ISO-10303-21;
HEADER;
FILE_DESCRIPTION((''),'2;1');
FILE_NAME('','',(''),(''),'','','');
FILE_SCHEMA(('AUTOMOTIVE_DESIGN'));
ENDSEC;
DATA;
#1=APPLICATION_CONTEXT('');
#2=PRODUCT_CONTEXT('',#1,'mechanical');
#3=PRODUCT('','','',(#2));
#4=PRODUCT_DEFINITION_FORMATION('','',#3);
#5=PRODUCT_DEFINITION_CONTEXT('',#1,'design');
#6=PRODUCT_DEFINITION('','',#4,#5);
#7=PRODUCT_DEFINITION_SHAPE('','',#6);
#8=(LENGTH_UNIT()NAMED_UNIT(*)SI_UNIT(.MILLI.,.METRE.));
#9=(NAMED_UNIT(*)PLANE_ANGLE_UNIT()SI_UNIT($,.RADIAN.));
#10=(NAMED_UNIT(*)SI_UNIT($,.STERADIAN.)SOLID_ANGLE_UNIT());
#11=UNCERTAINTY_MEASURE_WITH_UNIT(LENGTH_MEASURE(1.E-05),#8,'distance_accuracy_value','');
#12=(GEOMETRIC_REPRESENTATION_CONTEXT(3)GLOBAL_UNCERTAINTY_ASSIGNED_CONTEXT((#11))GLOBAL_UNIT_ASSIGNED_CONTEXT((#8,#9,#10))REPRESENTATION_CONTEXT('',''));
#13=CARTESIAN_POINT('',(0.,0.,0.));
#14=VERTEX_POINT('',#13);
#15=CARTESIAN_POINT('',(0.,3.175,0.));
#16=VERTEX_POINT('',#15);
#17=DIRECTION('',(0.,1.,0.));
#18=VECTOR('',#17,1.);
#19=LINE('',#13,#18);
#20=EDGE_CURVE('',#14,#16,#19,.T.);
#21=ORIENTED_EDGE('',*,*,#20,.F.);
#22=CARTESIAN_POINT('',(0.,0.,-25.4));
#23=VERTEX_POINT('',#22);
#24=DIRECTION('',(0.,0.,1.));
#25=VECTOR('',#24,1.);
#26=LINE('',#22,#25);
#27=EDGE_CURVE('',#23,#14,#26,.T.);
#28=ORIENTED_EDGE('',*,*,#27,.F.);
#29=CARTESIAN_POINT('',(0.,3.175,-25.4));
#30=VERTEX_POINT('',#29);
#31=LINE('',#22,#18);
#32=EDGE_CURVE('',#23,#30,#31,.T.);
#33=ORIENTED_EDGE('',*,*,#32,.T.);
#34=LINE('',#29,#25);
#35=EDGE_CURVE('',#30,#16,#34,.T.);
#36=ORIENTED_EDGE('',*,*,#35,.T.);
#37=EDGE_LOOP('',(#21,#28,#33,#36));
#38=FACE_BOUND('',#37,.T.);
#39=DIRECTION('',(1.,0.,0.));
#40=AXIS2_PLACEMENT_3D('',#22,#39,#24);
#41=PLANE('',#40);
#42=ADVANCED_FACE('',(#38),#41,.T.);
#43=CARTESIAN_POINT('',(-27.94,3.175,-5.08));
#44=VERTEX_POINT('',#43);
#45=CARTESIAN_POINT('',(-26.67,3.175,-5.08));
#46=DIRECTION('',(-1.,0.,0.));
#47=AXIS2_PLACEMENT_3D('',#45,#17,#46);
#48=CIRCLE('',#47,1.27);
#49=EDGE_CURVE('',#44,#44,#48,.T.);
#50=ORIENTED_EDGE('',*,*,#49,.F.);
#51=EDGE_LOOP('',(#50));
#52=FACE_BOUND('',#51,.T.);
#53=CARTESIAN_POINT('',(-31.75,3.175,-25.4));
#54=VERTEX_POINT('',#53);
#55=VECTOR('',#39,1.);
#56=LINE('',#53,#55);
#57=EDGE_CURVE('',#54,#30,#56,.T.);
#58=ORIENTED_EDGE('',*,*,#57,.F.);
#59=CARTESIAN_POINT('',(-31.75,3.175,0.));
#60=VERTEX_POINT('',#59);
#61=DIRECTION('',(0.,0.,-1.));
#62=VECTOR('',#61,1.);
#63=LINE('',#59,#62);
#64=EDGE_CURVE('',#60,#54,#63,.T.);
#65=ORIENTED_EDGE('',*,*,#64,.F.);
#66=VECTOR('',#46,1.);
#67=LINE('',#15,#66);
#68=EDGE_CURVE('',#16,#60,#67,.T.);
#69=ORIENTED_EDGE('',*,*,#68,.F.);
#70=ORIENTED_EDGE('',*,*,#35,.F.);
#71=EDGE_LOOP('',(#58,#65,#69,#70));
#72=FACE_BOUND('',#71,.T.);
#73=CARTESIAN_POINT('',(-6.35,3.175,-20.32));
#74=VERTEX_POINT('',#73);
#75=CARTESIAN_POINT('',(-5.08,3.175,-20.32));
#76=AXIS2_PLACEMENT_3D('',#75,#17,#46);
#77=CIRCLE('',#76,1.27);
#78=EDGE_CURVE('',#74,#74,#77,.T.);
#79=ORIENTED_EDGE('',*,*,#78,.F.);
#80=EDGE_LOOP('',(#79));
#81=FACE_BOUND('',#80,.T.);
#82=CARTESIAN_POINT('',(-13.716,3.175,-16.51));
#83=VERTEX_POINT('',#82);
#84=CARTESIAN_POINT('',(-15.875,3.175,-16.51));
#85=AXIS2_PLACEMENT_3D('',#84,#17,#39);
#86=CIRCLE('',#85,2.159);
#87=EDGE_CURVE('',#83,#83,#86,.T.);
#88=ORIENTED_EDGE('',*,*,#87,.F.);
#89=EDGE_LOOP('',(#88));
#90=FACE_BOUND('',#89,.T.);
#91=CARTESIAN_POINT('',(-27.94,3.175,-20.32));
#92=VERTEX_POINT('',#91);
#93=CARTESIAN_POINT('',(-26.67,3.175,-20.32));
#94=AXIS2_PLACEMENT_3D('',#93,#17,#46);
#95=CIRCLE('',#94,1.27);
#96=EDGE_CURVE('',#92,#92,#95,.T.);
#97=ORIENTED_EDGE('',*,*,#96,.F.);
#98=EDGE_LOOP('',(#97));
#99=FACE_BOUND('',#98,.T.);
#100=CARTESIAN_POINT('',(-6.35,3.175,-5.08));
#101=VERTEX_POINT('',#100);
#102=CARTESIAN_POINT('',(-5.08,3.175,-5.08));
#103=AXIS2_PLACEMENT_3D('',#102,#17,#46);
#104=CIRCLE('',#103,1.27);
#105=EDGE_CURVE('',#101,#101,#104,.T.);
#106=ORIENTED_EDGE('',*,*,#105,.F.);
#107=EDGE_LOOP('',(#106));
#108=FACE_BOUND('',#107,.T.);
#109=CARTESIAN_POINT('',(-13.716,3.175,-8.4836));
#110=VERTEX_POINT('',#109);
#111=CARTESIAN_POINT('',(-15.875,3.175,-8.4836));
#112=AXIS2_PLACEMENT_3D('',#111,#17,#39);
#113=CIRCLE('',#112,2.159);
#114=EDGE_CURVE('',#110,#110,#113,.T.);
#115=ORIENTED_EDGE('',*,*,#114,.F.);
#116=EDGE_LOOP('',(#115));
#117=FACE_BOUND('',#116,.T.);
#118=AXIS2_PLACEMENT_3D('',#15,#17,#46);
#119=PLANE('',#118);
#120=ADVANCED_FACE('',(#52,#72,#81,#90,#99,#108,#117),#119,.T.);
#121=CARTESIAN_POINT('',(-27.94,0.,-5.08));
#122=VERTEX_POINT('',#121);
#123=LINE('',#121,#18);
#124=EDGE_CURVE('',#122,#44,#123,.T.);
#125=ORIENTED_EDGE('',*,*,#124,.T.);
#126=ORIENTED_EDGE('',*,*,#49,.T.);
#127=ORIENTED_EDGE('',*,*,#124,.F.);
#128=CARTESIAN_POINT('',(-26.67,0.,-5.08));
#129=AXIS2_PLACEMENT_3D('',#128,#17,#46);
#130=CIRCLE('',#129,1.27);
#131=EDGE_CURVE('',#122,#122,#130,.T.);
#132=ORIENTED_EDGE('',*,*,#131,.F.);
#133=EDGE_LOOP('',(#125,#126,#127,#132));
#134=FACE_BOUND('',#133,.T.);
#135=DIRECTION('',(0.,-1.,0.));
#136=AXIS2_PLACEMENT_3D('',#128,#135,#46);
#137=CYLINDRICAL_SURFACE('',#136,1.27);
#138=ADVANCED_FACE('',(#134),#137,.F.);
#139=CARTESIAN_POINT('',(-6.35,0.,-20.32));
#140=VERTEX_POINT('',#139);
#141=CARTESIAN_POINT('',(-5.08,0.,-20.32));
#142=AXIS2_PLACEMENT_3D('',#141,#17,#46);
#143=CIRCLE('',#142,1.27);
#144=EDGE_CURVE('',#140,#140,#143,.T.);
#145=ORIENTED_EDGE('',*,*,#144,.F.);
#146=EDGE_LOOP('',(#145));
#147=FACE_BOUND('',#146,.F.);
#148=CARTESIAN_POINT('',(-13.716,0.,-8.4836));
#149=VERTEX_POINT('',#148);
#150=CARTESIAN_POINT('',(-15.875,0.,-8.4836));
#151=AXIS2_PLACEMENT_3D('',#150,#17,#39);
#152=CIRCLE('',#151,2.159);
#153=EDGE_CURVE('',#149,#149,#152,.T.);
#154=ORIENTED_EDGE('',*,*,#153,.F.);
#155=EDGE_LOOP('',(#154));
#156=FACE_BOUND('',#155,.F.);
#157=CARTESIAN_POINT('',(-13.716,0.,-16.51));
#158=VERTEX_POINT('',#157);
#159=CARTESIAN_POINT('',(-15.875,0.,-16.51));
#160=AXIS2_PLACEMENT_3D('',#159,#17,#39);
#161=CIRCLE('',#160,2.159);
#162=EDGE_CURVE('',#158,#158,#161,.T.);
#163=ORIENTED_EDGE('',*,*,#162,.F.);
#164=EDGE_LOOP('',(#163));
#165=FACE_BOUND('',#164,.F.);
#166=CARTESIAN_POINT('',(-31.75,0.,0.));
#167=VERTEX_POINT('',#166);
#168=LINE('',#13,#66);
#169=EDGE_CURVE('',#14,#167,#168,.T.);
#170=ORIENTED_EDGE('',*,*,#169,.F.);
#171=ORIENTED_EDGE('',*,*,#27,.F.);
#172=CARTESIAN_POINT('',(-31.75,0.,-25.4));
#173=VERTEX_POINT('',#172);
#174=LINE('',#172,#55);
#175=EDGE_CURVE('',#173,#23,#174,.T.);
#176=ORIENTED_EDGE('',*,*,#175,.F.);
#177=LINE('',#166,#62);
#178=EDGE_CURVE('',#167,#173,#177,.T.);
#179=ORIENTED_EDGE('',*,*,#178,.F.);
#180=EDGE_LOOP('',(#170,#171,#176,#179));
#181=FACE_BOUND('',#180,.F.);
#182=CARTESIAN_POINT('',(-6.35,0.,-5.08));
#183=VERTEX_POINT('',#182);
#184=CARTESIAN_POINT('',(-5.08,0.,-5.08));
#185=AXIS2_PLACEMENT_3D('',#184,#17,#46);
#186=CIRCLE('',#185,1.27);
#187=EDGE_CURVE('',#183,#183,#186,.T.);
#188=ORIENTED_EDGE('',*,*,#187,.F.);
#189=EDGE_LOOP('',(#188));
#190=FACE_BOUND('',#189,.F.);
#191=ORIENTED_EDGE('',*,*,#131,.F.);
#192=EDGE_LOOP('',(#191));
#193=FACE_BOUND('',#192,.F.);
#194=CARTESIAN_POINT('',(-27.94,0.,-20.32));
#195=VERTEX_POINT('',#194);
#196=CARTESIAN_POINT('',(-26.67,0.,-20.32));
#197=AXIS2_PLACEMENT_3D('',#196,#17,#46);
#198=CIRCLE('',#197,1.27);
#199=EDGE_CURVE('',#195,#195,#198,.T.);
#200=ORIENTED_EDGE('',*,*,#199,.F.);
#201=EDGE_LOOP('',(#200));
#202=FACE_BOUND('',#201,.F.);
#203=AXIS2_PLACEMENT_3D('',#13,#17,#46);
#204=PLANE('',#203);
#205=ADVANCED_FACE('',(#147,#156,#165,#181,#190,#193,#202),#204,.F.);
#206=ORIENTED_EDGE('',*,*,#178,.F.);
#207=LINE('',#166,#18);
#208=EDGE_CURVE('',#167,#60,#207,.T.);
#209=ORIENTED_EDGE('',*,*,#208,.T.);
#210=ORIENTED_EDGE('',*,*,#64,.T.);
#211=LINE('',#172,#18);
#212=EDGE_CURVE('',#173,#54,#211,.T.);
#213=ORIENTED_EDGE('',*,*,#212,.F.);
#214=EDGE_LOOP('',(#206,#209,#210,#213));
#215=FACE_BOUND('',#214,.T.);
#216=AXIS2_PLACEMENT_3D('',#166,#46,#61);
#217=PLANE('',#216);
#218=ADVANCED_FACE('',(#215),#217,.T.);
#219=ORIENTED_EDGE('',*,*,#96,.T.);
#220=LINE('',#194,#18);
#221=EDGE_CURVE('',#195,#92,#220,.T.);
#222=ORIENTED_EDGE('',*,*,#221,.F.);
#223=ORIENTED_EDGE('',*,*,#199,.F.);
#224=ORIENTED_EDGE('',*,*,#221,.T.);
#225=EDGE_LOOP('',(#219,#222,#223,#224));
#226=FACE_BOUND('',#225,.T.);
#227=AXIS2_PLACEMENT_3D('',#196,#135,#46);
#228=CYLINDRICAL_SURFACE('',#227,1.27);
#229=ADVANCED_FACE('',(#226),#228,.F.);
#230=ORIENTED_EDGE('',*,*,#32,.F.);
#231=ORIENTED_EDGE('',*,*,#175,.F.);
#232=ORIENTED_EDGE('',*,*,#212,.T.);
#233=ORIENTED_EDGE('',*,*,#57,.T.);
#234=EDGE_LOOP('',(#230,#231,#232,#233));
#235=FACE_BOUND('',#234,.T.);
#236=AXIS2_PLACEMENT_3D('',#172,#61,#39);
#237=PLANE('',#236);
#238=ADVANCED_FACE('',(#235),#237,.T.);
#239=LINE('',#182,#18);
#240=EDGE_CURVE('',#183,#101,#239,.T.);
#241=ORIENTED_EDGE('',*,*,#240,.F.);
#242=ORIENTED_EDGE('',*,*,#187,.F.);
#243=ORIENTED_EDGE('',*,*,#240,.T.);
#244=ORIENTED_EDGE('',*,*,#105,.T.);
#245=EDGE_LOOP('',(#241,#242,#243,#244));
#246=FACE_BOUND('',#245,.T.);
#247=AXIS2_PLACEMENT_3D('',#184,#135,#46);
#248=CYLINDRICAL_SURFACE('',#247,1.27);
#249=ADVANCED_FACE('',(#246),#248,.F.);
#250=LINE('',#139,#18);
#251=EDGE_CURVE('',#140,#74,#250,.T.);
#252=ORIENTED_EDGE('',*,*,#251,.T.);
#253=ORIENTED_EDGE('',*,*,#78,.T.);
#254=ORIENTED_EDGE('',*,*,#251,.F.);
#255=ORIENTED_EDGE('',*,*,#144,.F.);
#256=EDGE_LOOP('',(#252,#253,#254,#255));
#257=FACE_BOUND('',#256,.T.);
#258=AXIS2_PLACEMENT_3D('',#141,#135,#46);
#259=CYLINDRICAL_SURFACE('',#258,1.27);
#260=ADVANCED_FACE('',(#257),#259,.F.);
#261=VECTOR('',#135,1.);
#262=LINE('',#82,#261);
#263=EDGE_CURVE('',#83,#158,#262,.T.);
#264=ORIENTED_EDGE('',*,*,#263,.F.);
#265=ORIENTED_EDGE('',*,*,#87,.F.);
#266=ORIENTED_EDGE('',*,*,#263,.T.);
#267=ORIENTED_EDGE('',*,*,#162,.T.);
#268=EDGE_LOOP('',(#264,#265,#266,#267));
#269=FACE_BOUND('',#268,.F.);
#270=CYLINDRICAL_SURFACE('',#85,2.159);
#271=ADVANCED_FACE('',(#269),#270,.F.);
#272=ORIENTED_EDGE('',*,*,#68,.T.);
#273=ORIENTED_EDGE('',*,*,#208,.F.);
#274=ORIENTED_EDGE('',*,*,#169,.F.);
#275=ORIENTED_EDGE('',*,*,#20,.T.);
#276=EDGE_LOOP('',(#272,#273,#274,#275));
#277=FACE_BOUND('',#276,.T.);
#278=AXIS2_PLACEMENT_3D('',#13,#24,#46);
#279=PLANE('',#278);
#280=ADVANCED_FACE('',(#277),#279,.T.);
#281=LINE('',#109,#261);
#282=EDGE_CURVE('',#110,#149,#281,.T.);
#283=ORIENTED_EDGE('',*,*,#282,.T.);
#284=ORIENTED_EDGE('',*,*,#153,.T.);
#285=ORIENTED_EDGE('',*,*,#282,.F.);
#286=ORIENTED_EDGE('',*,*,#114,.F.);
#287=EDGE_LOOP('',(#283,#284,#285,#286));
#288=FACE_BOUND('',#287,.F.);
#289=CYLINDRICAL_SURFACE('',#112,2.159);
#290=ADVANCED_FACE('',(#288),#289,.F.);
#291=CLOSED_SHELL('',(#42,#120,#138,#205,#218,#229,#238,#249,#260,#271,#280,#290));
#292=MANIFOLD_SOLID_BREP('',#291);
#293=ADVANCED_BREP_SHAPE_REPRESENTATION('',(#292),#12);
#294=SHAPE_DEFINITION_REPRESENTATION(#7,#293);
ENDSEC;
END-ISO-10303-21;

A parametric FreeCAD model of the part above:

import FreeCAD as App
import Part
import Sketcher
Q = App.Units.Quantity


def add_polygon(sketch, points):
    """Adds a closed chain of lines whose ends are joined by coincident constraints."""
    first, n = sketch.GeometryCount, len(points)
    for a, b in zip(points, points[1:] + points[:1]):
        sketch.addGeometry(Part.LineSegment(App.Vector(*a, 0), App.Vector(*b, 0)), False)
    for i in range(n):
        sketch.addConstraint(Sketcher.Constraint("Coincident", first + i, 2, first + (i + 1) % n, 1))

doc = App.newDocument("Part")
body = doc.addObject("PartDesign::Body", "Body")

# Sketch on XZ plane
sketch1 = body.newObject("Sketcher::SketchObject", "Sketch")
sketch1.AttachmentSupport = (doc.getObject("XZ_Plane"), [""])
sketch1.MapMode = "FlatFace"
add_polygon(sketch1, [(-31.75, 0), (0, 0), (0, -25.4), (-31.75, -25.4)])  # lines 0-3
sketch1.addGeometry(Part.Circle(App.Vector(-5.08, -20.32, 0), App.Vector(0, 0, 1), 1.27), False)  # 4
sketch1.addGeometry(Part.Circle(App.Vector(-26.67, -20.32, 0), App.Vector(0, 0, 1), 1.27), False)  # 5
sketch1.addGeometry(Part.Circle(App.Vector(-5.08, -5.08, 0), App.Vector(0, 0, 1), 1.27), False)  # 6
sketch1.addGeometry(Part.Circle(App.Vector(-26.67, -5.08, 0), App.Vector(0, 0, 1), 1.27), False)  # 7
sketch1.addConstraint([
    Sketcher.Constraint("Horizontal", 0),
    Sketcher.Constraint("Vertical", 1),
    Sketcher.Constraint("Horizontal", 2),
    Sketcher.Constraint("Vertical", 3),
    Sketcher.Constraint("Coincident", 0, 2, -1, 1),
    Sketcher.Constraint("Equal", 4, 5),
    Sketcher.Constraint("Equal", 5, 6),
    Sketcher.Constraint("Equal", 6, 7),
    Sketcher.Constraint("Horizontal", 4, 3, 5, 3),
    Sketcher.Constraint("Horizontal", 6, 3, 7, 3),
    Sketcher.Constraint("Vertical", 4, 3, 6, 3),
    Sketcher.Constraint("Vertical", 5, 3, 7, 3),
    Sketcher.Constraint("Diameter", 4, Q("0.1 in")),
    Sketcher.Constraint("DistanceY", 1, 2, 1, 1, Q("1 in")),
    Sketcher.Constraint("DistanceX", 0, 1, 0, 2, Q("1.25 in")),
    Sketcher.Constraint("DistanceX", 4, 3, -1, 1, Q("0.2 in")),
    Sketcher.Constraint("DistanceY", 6, 3, -1, 1, Q("0.2 in")),
    Sketcher.Constraint("DistanceY", 4, 3, 6, 3, Q("0.6 in")),
    Sketcher.Constraint("DistanceX", 2, 2, 5, 3, Q("0.2 in")),
])
pad1 = body.newObject("PartDesign::Pad", "Pad")
pad1.Profile = sketch1
pad1.Length = Q("0.125 in")
pad1.Reversed = True

# Sketch on XZ plane
sketch2 = body.newObject("Sketcher::SketchObject", "Sketch001")
sketch2.AttachmentSupport = (doc.getObject("XZ_Plane"), [""])
sketch2.MapMode = "FlatFace"
sketch2.AttachmentOffset = App.Placement(App.Vector(0, 0, -0.125 * 25.4), App.Rotation())
sketch2.addGeometry([
    Part.Circle(App.Vector(-15.875, -16.51, 0), App.Vector(0, 0, 1), 2.159),
    Part.Circle(App.Vector(-15.875, -8.4836, 0), App.Vector(0, 0, 1), 2.159),
], False)
sketch2.addConstraint([
    Sketcher.Constraint("Equal", 0, 1),
    Sketcher.Constraint("Vertical", 0, 3, 1, 3),
    Sketcher.Constraint("Diameter", 0, Q("0.17 in")),
    Sketcher.Constraint("DistanceX", 0, 3, -1, 1, Q("0.625 in")),
    Sketcher.Constraint("DistanceY", 0, 3, 1, 3, Q("0.316 in")),
    Sketcher.Constraint("DistanceY", 0, 3, -1, 1, Q("0.65 in")),
])
pocket1 = body.newObject("PartDesign::Pocket", "Pocket")
pocket1.Profile = sketch2
pocket1.Type = "ThroughAll"
pocket1.Reversed = True

doc.recompute()
